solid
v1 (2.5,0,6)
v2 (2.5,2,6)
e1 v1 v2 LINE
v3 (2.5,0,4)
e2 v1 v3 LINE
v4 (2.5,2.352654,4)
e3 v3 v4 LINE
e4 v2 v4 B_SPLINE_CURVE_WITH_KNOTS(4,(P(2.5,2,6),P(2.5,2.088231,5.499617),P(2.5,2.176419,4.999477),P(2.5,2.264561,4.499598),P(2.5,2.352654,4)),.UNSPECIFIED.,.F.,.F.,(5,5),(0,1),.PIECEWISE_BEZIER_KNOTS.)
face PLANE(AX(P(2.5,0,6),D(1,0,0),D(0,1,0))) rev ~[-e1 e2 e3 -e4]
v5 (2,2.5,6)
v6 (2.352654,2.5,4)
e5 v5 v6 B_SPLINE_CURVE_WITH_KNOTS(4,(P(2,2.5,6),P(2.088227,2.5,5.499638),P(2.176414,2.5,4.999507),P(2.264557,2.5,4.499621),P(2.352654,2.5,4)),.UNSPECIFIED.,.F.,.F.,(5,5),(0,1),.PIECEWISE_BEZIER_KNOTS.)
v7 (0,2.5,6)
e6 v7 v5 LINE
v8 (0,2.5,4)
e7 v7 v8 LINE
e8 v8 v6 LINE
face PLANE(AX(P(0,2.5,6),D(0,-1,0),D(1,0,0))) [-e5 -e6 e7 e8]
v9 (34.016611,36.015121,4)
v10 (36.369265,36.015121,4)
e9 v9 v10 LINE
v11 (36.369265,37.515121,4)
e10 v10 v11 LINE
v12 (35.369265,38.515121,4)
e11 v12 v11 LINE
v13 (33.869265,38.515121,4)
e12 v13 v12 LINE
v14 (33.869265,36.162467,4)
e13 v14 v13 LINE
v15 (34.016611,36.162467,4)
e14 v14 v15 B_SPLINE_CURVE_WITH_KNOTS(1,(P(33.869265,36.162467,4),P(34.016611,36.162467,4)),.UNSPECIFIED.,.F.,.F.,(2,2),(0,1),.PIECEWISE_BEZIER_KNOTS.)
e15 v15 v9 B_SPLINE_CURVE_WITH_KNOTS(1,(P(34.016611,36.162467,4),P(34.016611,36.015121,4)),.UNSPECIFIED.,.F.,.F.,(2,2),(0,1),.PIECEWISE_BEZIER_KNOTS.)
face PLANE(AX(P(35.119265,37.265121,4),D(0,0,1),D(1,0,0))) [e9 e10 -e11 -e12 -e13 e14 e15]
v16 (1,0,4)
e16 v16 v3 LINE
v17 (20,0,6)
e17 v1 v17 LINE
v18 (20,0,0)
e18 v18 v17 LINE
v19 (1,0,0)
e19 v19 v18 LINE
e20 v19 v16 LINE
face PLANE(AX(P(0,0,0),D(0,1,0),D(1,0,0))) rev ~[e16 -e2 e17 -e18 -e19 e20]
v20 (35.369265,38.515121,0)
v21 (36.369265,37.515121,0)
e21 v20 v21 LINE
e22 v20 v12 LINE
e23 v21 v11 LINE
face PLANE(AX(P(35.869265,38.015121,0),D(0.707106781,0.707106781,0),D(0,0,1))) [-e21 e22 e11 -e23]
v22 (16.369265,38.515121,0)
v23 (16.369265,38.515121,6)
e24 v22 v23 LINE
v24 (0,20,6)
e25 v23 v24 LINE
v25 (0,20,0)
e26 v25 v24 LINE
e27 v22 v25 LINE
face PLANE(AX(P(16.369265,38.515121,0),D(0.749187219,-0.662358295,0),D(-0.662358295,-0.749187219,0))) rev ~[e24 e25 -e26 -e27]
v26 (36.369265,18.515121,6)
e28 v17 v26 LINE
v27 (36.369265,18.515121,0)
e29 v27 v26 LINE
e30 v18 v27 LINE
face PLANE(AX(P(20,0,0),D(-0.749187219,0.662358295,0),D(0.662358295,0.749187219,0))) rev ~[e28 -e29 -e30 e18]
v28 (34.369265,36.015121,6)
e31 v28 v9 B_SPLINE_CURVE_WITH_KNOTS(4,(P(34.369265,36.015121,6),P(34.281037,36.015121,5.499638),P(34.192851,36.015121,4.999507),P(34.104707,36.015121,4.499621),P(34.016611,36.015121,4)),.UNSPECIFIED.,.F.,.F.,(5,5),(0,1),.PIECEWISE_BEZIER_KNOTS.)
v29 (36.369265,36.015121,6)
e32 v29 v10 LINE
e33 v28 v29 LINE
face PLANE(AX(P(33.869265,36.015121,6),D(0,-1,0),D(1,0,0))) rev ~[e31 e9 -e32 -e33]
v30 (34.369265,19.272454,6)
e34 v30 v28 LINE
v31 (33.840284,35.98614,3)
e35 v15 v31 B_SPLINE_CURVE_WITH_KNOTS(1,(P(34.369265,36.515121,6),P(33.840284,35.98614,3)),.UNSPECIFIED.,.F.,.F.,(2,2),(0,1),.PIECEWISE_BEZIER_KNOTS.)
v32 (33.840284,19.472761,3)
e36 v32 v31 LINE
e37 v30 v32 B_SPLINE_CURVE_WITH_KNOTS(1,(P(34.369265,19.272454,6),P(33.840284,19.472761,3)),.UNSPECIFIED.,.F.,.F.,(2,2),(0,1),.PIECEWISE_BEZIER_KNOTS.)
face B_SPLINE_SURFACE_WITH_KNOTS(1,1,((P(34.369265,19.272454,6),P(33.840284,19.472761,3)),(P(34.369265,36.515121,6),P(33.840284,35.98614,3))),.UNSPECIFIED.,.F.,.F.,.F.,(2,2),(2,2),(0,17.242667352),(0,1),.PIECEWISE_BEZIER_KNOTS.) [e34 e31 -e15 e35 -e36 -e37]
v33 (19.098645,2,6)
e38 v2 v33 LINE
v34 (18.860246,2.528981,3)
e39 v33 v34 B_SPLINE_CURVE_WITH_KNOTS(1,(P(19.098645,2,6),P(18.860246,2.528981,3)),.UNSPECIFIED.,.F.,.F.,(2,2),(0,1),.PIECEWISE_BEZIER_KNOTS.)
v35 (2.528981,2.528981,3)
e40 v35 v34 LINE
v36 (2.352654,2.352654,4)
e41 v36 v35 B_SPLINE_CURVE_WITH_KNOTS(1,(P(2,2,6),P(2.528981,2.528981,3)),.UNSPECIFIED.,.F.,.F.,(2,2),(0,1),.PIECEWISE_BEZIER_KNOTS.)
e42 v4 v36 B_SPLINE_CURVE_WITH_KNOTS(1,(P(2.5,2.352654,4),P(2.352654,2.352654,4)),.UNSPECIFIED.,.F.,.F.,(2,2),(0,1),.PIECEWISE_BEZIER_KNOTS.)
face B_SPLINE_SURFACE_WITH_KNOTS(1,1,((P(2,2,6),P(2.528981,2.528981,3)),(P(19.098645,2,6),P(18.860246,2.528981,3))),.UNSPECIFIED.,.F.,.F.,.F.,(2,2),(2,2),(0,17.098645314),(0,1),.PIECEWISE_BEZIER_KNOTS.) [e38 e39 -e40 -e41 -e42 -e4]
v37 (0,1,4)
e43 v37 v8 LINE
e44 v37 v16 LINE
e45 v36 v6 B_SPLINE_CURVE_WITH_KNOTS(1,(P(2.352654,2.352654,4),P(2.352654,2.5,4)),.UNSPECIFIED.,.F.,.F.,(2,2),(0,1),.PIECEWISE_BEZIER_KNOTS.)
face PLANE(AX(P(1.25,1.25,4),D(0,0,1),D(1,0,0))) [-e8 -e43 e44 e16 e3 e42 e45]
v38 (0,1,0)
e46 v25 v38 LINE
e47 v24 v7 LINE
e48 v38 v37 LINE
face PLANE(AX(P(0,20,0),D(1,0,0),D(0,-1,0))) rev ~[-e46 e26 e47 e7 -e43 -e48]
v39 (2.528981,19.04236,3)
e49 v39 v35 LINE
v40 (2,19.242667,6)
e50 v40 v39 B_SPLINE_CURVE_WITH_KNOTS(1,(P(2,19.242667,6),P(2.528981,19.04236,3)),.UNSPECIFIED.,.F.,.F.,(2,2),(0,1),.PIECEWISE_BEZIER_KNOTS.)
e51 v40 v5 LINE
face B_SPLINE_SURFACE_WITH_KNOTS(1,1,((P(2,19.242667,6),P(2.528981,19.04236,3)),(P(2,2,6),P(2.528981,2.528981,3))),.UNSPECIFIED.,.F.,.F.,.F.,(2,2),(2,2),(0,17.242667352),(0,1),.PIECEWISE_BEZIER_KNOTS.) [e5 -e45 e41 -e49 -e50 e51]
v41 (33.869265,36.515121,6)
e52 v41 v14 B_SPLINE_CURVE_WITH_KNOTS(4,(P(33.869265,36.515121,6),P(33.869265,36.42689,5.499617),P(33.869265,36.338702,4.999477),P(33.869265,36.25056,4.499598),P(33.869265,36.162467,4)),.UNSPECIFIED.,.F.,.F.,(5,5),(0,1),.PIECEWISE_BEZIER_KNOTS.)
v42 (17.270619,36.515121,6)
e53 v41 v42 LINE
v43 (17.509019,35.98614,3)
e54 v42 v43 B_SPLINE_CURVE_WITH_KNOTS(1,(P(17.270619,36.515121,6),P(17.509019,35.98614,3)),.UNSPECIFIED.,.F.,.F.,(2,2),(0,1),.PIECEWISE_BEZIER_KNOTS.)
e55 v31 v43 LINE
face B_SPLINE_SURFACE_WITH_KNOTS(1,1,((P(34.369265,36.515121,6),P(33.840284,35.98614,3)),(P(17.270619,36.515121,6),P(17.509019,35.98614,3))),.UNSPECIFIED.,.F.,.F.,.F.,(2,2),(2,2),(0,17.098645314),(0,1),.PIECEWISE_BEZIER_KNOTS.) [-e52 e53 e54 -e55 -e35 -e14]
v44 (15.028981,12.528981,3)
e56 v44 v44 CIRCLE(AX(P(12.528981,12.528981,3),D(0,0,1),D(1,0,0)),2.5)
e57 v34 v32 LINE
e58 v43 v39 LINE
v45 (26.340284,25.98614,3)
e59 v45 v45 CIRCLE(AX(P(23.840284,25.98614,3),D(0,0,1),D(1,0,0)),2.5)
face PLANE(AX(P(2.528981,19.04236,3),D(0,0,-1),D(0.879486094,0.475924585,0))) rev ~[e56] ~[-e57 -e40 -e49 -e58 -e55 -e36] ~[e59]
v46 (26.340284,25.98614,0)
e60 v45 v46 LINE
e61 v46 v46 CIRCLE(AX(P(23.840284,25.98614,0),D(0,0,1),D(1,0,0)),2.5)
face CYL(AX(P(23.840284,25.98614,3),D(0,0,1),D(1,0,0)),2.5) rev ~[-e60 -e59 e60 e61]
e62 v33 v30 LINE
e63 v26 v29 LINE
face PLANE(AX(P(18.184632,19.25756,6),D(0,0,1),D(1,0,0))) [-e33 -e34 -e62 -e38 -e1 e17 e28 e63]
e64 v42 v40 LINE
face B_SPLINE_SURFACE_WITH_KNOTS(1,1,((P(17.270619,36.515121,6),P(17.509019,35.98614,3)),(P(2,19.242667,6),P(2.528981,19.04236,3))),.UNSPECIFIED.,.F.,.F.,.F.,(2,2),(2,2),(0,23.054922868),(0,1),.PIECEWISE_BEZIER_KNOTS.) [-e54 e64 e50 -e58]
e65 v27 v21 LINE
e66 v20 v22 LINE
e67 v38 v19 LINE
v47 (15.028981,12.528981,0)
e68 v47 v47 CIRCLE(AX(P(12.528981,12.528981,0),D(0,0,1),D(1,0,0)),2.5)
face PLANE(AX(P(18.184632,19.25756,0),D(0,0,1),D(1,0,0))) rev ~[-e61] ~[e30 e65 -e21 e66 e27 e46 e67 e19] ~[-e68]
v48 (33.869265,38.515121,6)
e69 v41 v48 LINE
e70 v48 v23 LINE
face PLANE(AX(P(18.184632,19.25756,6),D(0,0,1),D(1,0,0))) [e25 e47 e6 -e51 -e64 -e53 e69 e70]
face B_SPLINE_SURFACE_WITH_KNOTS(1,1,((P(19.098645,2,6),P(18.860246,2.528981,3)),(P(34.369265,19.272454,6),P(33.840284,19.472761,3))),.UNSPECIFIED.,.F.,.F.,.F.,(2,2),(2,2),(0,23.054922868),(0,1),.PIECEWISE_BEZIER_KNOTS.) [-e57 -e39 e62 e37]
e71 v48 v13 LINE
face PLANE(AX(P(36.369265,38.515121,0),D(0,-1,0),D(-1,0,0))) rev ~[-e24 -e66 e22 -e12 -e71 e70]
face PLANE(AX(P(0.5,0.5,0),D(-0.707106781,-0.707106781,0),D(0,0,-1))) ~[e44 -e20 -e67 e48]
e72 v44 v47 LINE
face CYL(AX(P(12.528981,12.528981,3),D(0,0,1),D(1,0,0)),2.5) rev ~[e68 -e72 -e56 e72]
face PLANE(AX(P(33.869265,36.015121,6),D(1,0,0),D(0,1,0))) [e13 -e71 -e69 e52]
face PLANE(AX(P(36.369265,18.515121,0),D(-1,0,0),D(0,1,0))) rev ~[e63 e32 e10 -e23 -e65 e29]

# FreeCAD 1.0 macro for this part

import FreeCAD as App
import Part
import Sketcher
Q = App.Units.Quantity


def edges_at(feature, points):
    """Names of the edges that pass closest to the given points."""
    edges = feature.Shape.Edges
    near = lambda p: min(range(len(edges)), key=lambda i: edges[i].distToShape(Part.Vertex(*p))[0])
    return sorted({f"Edge{near(p) + 1}" for p in points})

doc = App.newDocument("Part")
body = doc.addObject("PartDesign::Body", "Body")

sketch1 = body.newObject("Sketcher::SketchObject", "Sketch")
sketch1.AttachmentSupport = (doc.getObject("XY_Plane"), [""])
sketch1.MapMode = "FlatFace"
sketch1.addGeometry([
    Part.LineSegment(App.Vector(0, 20, 0), App.Vector(0, 0, 0)),
    Part.LineSegment(App.Vector(0, 0, 0), App.Vector(20, 0, 0)),
    Part.LineSegment(App.Vector(20, 0, 0), App.Vector(36.369265, 18.515121, 0)),
    Part.LineSegment(App.Vector(36.369265, 18.515121, 0), App.Vector(36.369265, 38.515121, 0)),
    Part.LineSegment(App.Vector(36.369265, 38.515121, 0), App.Vector(16.369265, 38.515121, 0)),
    Part.LineSegment(App.Vector(16.369265, 38.515121, 0), App.Vector(0, 20, 0)),
], False)
sketch1.addConstraint([
    Sketcher.Constraint("Coincident", 0, 2, 1, 1),
    Sketcher.Constraint("Coincident", 1, 2, 2, 1),
    Sketcher.Constraint("Coincident", 2, 2, 3, 1),
    Sketcher.Constraint("Coincident", 3, 2, 4, 1),
    Sketcher.Constraint("Coincident", 4, 2, 5, 1),
    Sketcher.Constraint("Coincident", 5, 2, 0, 1),
    Sketcher.Constraint("Vertical", 0),
    Sketcher.Constraint("Horizontal", 1),
    Sketcher.Constraint("Vertical", 3),
    Sketcher.Constraint("Horizontal", 4),
    Sketcher.Constraint("Coincident", 0, 2, -1, 1),
    Sketcher.Constraint("Parallel", 2, 5),
    Sketcher.Constraint("Equal", 1, 4),
    Sketcher.Constraint("Equal", 4, 0),
    Sketcher.Constraint("DistanceX", 1, 1, 1, 2, Q("20 mm")),
    Sketcher.Constraint("Distance", 2, Q("24.71361 mm")),
    Sketcher.Constraint("DistanceY", -1, 1, 2, 2, Q("18.515121 mm")),
])
pad1 = body.newObject("PartDesign::Pad", "Pad")
pad1.Profile = sketch1
pad1.Length = 6

sketch2 = body.newObject("Sketcher::SketchObject", "Sketch001")
sketch2.AttachmentSupport = (doc.getObject("XY_Plane"), [""])
sketch2.MapMode = "FlatFace"
sketch2.AttachmentOffset = App.Placement(App.Vector(0, 0, 6), App.Rotation())
sketch2.addGeometry([
    Part.LineSegment(App.Vector(2, 19.242667, 0), App.Vector(2, 2, 0)),
    Part.LineSegment(App.Vector(2, 2, 0), App.Vector(19.098645, 2, 0)),
    Part.LineSegment(App.Vector(19.098645, 2, 0), App.Vector(34.369265, 19.272454, 0)),
    Part.LineSegment(App.Vector(34.369265, 19.272454, 0), App.Vector(34.369265, 36.515121, 0)),
    Part.LineSegment(App.Vector(34.369265, 36.515121, 0), App.Vector(17.270619, 36.515121, 0)),
    Part.LineSegment(App.Vector(17.270619, 36.515121, 0), App.Vector(2, 19.242667, 0)),
], False)
sketch2.addConstraint([
    Sketcher.Constraint("Coincident", 0, 2, 1, 1),
    Sketcher.Constraint("Coincident", 1, 2, 2, 1),
    Sketcher.Constraint("Coincident", 2, 2, 3, 1),
    Sketcher.Constraint("Coincident", 3, 2, 4, 1),
    Sketcher.Constraint("Coincident", 4, 2, 5, 1),
    Sketcher.Constraint("Coincident", 5, 2, 0, 1),
    Sketcher.Constraint("Vertical", 0),
    Sketcher.Constraint("Horizontal", 1),
    Sketcher.Constraint("Vertical", 3),
    Sketcher.Constraint("Horizontal", 4),
    Sketcher.Constraint("Parallel", 2, 5),
    Sketcher.Constraint("Equal", 1, 4),
    Sketcher.Constraint("DistanceX", -1, 1, 0, 2, Q("2 mm")),
    Sketcher.Constraint("DistanceY", -1, 1, 0, 2, Q("2 mm")),
    Sketcher.Constraint("DistanceX", 1, 1, 1, 2, Q("17.098645 mm")),
    Sketcher.Constraint("DistanceY", 0, 2, 0, 1, Q("17.242667 mm")),
    Sketcher.Constraint("DistanceY", -1, 1, 3, 2, Q("36.515121 mm")),
    Sketcher.Constraint("DistanceX", -1, 1, 4, 2, Q("17.270619 mm")),
])
pocket1 = body.newObject("PartDesign::Pocket", "Pocket")
pocket1.Profile = sketch2
pocket1.Length = 3
pocket1.TaperAngle = -10
doc.recompute()

chamfer = body.newObject("PartDesign::Chamfer", "Chamfer")
chamfer.Base = (pocket1, edges_at(pocket1, [(0, 0, 3), (36.369, 38.515, 3)]))
chamfer.Size = 1

sketch3 = body.newObject("Sketcher::SketchObject", "Sketch002")
sketch3.AttachmentSupport = (doc.getObject("XY_Plane"), [""])
sketch3.MapMode = "FlatFace"
sketch3.AttachmentOffset = App.Placement(App.Vector(0, 0, 6), App.Rotation())
sketch3.addGeometry([
    Part.LineSegment(App.Vector(0, 2.5, 0), App.Vector(0, 0, 0)),
    Part.LineSegment(App.Vector(0, 0, 0), App.Vector(2.5, 0, 0)),
    Part.LineSegment(App.Vector(2.5, 0, 0), App.Vector(2.5, 2.5, 0)),
    Part.LineSegment(App.Vector(2.5, 2.5, 0), App.Vector(0, 2.5, 0)),
    Part.LineSegment(App.Vector(33.869265, 38.515121, 0), App.Vector(33.869265, 36.015121, 0)),
    Part.LineSegment(App.Vector(33.869265, 36.015121, 0), App.Vector(36.369265, 36.015121, 0)),
    Part.LineSegment(App.Vector(36.369265, 36.015121, 0), App.Vector(36.369265, 38.515121, 0)),
    Part.LineSegment(App.Vector(36.369265, 38.515121, 0), App.Vector(33.869265, 38.515121, 0)),
], False)
sketch3.addConstraint([
    Sketcher.Constraint("Coincident", 0, 2, 1, 1),
    Sketcher.Constraint("Coincident", 1, 2, 2, 1),
    Sketcher.Constraint("Coincident", 2, 2, 3, 1),
    Sketcher.Constraint("Coincident", 3, 2, 0, 1),
    Sketcher.Constraint("Coincident", 4, 2, 5, 1),
    Sketcher.Constraint("Coincident", 5, 2, 6, 1),
    Sketcher.Constraint("Coincident", 6, 2, 7, 1),
    Sketcher.Constraint("Coincident", 7, 2, 4, 1),
    Sketcher.Constraint("Vertical", 0),
    Sketcher.Constraint("Horizontal", 1),
    Sketcher.Constraint("Vertical", 2),
    Sketcher.Constraint("Horizontal", 3),
    Sketcher.Constraint("Vertical", 4),
    Sketcher.Constraint("Horizontal", 5),
    Sketcher.Constraint("Vertical", 6),
    Sketcher.Constraint("Horizontal", 7),
    Sketcher.Constraint("Coincident", 0, 2, -1, 1),
    Sketcher.Constraint("Equal", 3, 5),
    Sketcher.Constraint("Equal", 7, 0),
    Sketcher.Constraint("Equal", 2, 4),
    Sketcher.Constraint("DistanceX", 1, 1, 1, 2, Q("2.5 mm")),
    Sketcher.Constraint("DistanceY", -1, 1, 4, 2, Q("36.015121 mm")),
    Sketcher.Constraint("DistanceX", -1, 1, 4, 2, Q("33.869265 mm")),
])
pocket2 = body.newObject("PartDesign::Pocket", "Pocket001")
pocket2.Profile = sketch3
pocket2.Length = 2

sketch4 = body.newObject("Sketcher::SketchObject", "Sketch003")
sketch4.AttachmentSupport = (doc.getObject("XY_Plane"), [""])
sketch4.MapMode = "FlatFace"
sketch4.AttachmentOffset = App.Placement(App.Vector(0, 0, 3), App.Rotation())
sketch4.addGeometry([
    Part.Circle(App.Vector(12.528981, 12.528981, 0), App.Vector(0, 0, 1), 2.5),
    Part.Circle(App.Vector(23.840284, 25.98614, 0), App.Vector(0, 0, 1), 2.5),
], False)
sketch4.addConstraint([
    Sketcher.Constraint("Equal", 0, 1),
    Sketcher.Constraint("Diameter", 0, Q("5 mm")),
    Sketcher.Constraint("DistanceX", -1, 1, 0, 3, Q("12.528981 mm")),
    Sketcher.Constraint("DistanceY", -1, 1, 0, 3, Q("12.528981 mm")),
    Sketcher.Constraint("DistanceY", -1, 1, 1, 3, Q("25.98614 mm")),
    Sketcher.Constraint("DistanceX", -1, 1, 1, 3, Q("23.840284 mm")),
])
pocket3 = body.newObject("PartDesign::Pocket", "Pocket002")
pocket3.Profile = sketch4
pocket3.Type = "ThroughAll"

doc.recompute()
